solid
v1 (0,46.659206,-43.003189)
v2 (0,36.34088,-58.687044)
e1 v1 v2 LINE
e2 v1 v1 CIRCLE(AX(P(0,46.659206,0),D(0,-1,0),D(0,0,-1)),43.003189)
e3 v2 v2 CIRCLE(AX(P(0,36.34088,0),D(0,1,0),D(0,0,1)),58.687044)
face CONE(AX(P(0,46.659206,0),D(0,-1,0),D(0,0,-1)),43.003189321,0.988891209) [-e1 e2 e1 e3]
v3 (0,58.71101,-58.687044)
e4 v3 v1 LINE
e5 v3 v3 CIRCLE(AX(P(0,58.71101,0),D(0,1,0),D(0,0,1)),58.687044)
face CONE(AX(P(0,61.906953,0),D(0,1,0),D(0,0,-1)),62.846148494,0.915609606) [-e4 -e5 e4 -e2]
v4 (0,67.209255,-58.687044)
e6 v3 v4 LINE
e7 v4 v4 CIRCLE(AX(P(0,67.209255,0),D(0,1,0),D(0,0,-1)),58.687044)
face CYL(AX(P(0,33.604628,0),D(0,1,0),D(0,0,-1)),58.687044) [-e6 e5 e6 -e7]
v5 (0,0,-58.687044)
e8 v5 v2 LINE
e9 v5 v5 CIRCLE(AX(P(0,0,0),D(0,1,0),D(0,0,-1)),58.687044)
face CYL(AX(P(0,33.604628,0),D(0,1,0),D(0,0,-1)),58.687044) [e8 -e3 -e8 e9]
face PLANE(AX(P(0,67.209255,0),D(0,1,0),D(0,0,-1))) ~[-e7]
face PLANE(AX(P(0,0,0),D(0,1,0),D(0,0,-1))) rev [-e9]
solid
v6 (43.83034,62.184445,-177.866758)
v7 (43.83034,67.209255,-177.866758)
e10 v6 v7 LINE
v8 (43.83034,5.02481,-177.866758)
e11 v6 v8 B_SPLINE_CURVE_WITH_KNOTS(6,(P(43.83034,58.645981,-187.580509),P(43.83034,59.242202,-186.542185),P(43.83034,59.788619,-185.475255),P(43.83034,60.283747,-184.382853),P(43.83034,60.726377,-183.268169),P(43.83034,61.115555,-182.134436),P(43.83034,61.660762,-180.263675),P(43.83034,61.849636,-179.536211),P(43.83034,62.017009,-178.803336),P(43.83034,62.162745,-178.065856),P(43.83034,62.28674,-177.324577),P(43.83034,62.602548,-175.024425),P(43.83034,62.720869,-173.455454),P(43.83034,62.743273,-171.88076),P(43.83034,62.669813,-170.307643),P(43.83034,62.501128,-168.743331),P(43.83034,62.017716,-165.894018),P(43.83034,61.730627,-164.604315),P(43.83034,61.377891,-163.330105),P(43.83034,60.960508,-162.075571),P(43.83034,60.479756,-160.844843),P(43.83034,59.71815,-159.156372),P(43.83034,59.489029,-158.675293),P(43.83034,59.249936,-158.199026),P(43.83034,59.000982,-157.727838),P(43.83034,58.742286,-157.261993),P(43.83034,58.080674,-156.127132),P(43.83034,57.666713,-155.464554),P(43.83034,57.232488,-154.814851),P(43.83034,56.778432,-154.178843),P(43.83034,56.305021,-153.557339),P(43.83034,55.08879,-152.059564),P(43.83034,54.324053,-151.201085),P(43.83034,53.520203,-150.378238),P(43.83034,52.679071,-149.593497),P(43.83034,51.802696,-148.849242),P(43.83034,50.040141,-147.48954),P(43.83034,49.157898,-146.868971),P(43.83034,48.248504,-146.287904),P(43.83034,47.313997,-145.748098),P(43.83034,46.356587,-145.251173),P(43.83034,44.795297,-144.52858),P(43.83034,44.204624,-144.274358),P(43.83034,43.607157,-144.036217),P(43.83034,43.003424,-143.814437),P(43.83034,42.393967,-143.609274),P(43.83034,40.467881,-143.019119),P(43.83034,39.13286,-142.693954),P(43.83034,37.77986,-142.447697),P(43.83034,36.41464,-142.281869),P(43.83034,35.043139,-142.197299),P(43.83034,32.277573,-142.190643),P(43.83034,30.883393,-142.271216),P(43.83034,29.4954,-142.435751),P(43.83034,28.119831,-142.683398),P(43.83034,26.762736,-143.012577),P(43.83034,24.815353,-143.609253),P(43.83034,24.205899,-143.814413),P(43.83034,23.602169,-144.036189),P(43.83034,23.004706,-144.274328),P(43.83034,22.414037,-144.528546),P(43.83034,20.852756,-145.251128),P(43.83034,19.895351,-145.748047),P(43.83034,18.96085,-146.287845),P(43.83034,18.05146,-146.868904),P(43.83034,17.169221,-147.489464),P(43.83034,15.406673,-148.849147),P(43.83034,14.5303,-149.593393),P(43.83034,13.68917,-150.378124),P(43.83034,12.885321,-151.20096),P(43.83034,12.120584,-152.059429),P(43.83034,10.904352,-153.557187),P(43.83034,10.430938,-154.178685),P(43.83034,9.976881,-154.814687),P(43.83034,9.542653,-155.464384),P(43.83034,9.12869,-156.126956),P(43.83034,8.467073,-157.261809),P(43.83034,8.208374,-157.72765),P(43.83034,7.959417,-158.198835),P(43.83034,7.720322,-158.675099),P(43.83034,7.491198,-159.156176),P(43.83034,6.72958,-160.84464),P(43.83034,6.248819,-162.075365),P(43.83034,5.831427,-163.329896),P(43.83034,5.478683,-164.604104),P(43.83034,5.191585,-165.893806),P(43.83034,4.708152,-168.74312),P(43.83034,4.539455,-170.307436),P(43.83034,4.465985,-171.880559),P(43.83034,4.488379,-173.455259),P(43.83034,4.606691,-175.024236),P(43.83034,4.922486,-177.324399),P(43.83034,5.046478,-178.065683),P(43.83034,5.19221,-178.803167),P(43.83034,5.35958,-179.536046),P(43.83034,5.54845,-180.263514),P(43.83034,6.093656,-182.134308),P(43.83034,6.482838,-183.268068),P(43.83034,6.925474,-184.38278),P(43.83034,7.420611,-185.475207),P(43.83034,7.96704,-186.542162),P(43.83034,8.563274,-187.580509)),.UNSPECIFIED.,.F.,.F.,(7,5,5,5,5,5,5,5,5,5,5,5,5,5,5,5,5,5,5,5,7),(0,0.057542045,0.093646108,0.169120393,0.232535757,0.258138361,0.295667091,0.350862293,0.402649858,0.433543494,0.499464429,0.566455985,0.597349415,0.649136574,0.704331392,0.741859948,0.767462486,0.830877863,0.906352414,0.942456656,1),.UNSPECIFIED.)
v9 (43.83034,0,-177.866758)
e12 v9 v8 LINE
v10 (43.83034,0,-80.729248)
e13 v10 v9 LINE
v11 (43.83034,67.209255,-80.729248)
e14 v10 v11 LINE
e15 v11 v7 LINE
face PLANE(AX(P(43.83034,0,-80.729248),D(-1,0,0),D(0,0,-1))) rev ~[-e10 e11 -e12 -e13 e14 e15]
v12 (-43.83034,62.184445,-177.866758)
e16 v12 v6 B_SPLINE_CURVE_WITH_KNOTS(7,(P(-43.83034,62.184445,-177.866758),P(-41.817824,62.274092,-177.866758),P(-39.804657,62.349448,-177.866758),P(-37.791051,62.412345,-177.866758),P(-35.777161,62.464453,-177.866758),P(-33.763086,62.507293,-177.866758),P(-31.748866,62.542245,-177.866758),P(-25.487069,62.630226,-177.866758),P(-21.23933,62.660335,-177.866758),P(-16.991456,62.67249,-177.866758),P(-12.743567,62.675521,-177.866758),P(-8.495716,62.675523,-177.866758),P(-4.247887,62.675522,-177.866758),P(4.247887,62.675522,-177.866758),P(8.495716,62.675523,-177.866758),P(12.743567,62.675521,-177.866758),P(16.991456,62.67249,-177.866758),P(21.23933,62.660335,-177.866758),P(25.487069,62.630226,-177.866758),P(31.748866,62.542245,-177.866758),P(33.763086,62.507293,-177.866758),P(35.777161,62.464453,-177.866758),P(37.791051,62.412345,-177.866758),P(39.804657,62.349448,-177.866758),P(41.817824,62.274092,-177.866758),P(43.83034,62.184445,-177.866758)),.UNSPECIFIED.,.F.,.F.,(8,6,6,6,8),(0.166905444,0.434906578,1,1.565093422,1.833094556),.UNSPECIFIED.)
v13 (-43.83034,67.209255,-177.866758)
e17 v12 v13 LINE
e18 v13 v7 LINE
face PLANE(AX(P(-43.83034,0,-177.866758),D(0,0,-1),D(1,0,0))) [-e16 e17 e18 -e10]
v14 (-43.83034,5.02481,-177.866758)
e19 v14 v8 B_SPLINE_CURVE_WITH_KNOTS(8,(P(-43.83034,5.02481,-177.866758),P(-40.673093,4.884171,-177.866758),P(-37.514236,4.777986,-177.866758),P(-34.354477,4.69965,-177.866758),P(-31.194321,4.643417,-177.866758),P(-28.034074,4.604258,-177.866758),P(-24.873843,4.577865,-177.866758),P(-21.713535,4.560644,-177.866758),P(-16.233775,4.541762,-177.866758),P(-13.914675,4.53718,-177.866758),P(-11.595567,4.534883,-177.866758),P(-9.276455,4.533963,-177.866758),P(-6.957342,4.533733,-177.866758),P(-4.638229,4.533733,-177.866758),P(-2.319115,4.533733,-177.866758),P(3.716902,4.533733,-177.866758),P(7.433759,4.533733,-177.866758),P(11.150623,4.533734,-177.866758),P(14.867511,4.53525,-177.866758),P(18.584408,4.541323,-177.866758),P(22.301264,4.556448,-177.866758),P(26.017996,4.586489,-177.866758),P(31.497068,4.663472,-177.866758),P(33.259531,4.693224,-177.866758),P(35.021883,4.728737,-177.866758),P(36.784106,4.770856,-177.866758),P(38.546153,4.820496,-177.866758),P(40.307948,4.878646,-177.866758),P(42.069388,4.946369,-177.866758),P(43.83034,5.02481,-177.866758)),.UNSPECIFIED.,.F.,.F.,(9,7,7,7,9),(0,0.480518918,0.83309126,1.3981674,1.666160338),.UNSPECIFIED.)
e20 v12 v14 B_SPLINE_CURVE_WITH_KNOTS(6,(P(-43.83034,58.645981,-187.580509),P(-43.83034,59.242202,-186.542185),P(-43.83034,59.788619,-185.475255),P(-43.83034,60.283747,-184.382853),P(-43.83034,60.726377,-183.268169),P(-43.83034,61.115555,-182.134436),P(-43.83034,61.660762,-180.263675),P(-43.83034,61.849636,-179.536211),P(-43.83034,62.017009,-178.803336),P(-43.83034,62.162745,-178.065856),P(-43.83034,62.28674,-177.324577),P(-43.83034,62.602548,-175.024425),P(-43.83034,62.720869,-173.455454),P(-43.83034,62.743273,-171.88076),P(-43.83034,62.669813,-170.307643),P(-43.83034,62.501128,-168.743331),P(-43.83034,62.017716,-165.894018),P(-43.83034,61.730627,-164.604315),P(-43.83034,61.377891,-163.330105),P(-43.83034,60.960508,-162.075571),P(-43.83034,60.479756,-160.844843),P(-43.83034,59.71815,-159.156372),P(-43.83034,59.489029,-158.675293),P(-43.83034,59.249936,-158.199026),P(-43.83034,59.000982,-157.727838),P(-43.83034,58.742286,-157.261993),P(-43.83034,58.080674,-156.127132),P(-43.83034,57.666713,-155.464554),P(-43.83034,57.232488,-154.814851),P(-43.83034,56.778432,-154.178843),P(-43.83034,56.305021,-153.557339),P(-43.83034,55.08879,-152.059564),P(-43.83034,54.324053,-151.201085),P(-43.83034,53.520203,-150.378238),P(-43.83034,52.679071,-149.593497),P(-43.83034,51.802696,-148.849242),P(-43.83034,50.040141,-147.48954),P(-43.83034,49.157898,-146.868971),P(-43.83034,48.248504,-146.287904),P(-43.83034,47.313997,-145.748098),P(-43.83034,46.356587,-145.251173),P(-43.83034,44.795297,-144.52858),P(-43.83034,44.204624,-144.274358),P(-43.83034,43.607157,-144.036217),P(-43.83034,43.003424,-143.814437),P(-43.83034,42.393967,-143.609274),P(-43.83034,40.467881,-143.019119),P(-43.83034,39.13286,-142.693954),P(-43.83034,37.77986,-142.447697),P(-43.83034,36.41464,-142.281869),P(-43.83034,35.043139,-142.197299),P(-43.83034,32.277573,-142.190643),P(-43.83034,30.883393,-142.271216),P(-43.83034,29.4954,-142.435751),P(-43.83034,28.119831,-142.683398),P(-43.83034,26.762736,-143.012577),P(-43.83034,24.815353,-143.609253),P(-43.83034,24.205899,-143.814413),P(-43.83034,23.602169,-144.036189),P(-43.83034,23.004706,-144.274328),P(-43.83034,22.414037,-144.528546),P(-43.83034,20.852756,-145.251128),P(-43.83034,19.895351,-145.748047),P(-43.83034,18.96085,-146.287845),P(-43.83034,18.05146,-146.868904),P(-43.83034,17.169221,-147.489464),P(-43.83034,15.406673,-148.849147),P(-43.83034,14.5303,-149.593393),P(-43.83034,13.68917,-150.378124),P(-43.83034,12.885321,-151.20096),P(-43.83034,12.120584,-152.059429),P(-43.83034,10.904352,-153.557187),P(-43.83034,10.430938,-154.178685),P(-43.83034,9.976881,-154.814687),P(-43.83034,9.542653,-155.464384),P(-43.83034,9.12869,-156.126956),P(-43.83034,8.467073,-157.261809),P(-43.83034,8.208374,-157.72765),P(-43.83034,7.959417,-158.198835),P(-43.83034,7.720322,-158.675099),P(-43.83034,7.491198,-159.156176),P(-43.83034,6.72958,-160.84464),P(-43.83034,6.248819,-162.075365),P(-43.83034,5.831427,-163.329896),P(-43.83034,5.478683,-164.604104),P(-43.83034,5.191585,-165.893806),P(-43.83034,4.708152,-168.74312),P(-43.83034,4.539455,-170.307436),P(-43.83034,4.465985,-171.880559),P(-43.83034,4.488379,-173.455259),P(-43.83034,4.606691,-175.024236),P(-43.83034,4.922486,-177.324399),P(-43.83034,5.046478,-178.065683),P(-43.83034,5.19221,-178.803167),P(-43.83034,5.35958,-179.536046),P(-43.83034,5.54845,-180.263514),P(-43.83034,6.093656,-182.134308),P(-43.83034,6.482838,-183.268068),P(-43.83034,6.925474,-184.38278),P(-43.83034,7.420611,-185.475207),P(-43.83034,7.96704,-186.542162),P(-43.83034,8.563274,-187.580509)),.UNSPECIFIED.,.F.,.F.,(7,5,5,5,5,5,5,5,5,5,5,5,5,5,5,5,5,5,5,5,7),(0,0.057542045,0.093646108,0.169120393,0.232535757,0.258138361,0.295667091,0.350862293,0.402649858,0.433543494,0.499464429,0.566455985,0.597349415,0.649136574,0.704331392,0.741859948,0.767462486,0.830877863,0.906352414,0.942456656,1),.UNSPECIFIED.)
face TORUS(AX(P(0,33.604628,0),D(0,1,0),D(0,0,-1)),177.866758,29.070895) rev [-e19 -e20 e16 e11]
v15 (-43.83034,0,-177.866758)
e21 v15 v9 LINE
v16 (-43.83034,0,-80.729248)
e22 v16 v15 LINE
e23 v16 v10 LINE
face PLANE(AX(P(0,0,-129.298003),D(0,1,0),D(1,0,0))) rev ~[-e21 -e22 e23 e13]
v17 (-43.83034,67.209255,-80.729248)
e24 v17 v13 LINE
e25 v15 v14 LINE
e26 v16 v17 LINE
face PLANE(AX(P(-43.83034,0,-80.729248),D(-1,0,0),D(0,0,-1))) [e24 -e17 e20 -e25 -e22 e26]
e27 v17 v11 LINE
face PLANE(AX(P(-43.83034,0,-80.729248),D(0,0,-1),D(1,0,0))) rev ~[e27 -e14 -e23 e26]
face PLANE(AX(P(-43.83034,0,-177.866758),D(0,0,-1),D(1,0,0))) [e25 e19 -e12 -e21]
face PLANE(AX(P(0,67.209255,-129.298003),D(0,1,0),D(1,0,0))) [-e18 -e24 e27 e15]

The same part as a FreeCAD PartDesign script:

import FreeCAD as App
import Part
import Sketcher

doc = App.newDocument("Part")
body = doc.addObject("PartDesign::Body", "Body")

# Sketch on XY plane
sketch1 = body.newObject("Sketcher::SketchObject", "Sketch")
sketch1.AttachmentSupport = (doc.getObject("XY_Plane"), [""])
sketch1.MapMode = "FlatFace"
sketch1.addGeometry([
    Part.LineSegment(App.Vector(0, 67, 0), App.Vector(0, 0, 0)),
    Part.LineSegment(App.Vector(0, 0, 0), App.Vector(59, 0, 0)),
    Part.LineSegment(App.Vector(59, 0, 0), App.Vector(59, 67, 0)),
    Part.LineSegment(App.Vector(59, 67, 0), App.Vector(0, 67, 0)),
], False)
sketch1.addConstraint([
    Sketcher.Constraint("Coincident", 0, 2, 1, 1),
    Sketcher.Constraint("Coincident", 1, 2, 2, 1),
    Sketcher.Constraint("Coincident", 2, 2, 3, 1),
    Sketcher.Constraint("Coincident", 3, 2, 0, 1),
    Sketcher.Constraint("Vertical", 0),
    Sketcher.Constraint("Horizontal", 1),
    Sketcher.Constraint("Vertical", 2),
    Sketcher.Constraint("Horizontal", 3),
    Sketcher.Constraint("Coincident", 0, 2, -1, 1),
    Sketcher.Constraint("DistanceX", 1, 1, 1, 2, 58.687044),
    Sketcher.Constraint("DistanceY", 0, 2, 0, 1, 67.209255),
])
revolution = body.newObject("PartDesign::Revolution", "Revolution")
revolution.Profile = sketch1
revolution.ReferenceAxis = (sketch1, ["V_Axis"])
revolution.Angle = 360
body2 = doc.addObject("PartDesign::Body", "Body001")

# Sketch on XZ plane
sketch2 = body2.newObject("Sketcher::SketchObject", "Sketch001")
sketch2.AttachmentSupport = (doc.getObject("XZ_Plane001"), [""])
sketch2.MapMode = "FlatFace"
sketch2.addGeometry([
    Part.LineSegment(App.Vector(-44, -178, 0), App.Vector(-44, -81, 0)),
    Part.LineSegment(App.Vector(-44, -81, 0), App.Vector(44, -81, 0)),
    Part.LineSegment(App.Vector(44, -81, 0), App.Vector(44, -178, 0)),
    Part.LineSegment(App.Vector(44, -178, 0), App.Vector(-44, -178, 0)),
], False)
sketch2.addConstraint([
    Sketcher.Constraint("Coincident", 0, 2, 1, 1),
    Sketcher.Constraint("Coincident", 1, 2, 2, 1),
    Sketcher.Constraint("Coincident", 2, 2, 3, 1),
    Sketcher.Constraint("Coincident", 3, 2, 0, 1),
    Sketcher.Constraint("Vertical", 0),
    Sketcher.Constraint("Horizontal", 1),
    Sketcher.Constraint("Vertical", 2),
    Sketcher.Constraint("Horizontal", 3),
    Sketcher.Constraint("DistanceX", 1, 1, 1, 2, 87.660679),
    Sketcher.Constraint("DistanceY", 0, 1, 0, 2, 97.13751),
    Sketcher.Constraint("DistanceX", 0, 2, -1, 1, 43.83034),
    Sketcher.Constraint("DistanceY", 0, 2, -1, 1, 80.729248),
])
pad1 = body2.newObject("PartDesign::Pad", "Pad")
pad1.Profile = sketch2
pad1.Length = 67.209255
pad1.Reversed = True
body3 = doc.addObject("PartDesign::Body", "Body002")
body3.AllowCompound = True

# Sketch on YZ plane
sketch3 = body3.newObject("Sketcher::SketchObject", "Sketch002")
sketch3.AttachmentSupport = (doc.getObject("YZ_Plane002"), [""])
sketch3.MapMode = "FlatFace"
sketch3.addGeometry([
    Part.Circle(App.Vector(34, -178, 0), App.Vector(0, 0, 1), 29),
    Part.LineSegment(App.Vector(62, -63, 0), App.Vector(47, -43, 0)),
    Part.LineSegment(App.Vector(47, -43, 0), App.Vector(34, -63, 0)),
    Part.LineSegment(App.Vector(34, -63, 0), App.Vector(62, -63, 0)),
], False)
sketch3.addConstraint([
    Sketcher.Constraint("Coincident", 1, 2, 2, 1),
    Sketcher.Constraint("Coincident", 2, 2, 3, 1),
    Sketcher.Constraint("Coincident", 3, 2, 1, 1),
    Sketcher.Constraint("Horizontal", 3),
    Sketcher.Constraint("Vertical", 0, 3, 2, 2),
    Sketcher.Constraint("Diameter", 0, 58.141789),
    Sketcher.Constraint("Distance", 2, 23.752159),
    Sketcher.Constraint("DistanceX", 3, 1, 3, 2, 28.302326),
    Sketcher.Constraint("DistanceY", 1, 2, -1, 1, 43.003189),
    Sketcher.Constraint("DistanceY", 2, 2, -1, 1, 62.846148),
    Sketcher.Constraint("DistanceY", 0, 3, 1, 2, 134.863568),
    Sketcher.Constraint("DistanceX", -1, 1, 0, 3, 33.604628),
])
revolution2 = body3.newObject("PartDesign::Revolution", "Revolution001")
revolution2.Profile = sketch3
revolution2.ReferenceAxis = (sketch3, ["H_Axis"])
revolution2.Angle = 360
doc.recompute()

body4 = doc.addObject("PartDesign::Body", "Body003")
body4.BaseFeature = body3
boolean = body.newObject("PartDesign::Boolean", "Boolean")
boolean.Type = "Cut"
boolean.addObjects([body4])
doc.recompute()

boolean2 = body2.newObject("PartDesign::Boolean", "Boolean001")
boolean2.Type = "Cut"
boolean2.addObjects([body3])

doc.recompute()
